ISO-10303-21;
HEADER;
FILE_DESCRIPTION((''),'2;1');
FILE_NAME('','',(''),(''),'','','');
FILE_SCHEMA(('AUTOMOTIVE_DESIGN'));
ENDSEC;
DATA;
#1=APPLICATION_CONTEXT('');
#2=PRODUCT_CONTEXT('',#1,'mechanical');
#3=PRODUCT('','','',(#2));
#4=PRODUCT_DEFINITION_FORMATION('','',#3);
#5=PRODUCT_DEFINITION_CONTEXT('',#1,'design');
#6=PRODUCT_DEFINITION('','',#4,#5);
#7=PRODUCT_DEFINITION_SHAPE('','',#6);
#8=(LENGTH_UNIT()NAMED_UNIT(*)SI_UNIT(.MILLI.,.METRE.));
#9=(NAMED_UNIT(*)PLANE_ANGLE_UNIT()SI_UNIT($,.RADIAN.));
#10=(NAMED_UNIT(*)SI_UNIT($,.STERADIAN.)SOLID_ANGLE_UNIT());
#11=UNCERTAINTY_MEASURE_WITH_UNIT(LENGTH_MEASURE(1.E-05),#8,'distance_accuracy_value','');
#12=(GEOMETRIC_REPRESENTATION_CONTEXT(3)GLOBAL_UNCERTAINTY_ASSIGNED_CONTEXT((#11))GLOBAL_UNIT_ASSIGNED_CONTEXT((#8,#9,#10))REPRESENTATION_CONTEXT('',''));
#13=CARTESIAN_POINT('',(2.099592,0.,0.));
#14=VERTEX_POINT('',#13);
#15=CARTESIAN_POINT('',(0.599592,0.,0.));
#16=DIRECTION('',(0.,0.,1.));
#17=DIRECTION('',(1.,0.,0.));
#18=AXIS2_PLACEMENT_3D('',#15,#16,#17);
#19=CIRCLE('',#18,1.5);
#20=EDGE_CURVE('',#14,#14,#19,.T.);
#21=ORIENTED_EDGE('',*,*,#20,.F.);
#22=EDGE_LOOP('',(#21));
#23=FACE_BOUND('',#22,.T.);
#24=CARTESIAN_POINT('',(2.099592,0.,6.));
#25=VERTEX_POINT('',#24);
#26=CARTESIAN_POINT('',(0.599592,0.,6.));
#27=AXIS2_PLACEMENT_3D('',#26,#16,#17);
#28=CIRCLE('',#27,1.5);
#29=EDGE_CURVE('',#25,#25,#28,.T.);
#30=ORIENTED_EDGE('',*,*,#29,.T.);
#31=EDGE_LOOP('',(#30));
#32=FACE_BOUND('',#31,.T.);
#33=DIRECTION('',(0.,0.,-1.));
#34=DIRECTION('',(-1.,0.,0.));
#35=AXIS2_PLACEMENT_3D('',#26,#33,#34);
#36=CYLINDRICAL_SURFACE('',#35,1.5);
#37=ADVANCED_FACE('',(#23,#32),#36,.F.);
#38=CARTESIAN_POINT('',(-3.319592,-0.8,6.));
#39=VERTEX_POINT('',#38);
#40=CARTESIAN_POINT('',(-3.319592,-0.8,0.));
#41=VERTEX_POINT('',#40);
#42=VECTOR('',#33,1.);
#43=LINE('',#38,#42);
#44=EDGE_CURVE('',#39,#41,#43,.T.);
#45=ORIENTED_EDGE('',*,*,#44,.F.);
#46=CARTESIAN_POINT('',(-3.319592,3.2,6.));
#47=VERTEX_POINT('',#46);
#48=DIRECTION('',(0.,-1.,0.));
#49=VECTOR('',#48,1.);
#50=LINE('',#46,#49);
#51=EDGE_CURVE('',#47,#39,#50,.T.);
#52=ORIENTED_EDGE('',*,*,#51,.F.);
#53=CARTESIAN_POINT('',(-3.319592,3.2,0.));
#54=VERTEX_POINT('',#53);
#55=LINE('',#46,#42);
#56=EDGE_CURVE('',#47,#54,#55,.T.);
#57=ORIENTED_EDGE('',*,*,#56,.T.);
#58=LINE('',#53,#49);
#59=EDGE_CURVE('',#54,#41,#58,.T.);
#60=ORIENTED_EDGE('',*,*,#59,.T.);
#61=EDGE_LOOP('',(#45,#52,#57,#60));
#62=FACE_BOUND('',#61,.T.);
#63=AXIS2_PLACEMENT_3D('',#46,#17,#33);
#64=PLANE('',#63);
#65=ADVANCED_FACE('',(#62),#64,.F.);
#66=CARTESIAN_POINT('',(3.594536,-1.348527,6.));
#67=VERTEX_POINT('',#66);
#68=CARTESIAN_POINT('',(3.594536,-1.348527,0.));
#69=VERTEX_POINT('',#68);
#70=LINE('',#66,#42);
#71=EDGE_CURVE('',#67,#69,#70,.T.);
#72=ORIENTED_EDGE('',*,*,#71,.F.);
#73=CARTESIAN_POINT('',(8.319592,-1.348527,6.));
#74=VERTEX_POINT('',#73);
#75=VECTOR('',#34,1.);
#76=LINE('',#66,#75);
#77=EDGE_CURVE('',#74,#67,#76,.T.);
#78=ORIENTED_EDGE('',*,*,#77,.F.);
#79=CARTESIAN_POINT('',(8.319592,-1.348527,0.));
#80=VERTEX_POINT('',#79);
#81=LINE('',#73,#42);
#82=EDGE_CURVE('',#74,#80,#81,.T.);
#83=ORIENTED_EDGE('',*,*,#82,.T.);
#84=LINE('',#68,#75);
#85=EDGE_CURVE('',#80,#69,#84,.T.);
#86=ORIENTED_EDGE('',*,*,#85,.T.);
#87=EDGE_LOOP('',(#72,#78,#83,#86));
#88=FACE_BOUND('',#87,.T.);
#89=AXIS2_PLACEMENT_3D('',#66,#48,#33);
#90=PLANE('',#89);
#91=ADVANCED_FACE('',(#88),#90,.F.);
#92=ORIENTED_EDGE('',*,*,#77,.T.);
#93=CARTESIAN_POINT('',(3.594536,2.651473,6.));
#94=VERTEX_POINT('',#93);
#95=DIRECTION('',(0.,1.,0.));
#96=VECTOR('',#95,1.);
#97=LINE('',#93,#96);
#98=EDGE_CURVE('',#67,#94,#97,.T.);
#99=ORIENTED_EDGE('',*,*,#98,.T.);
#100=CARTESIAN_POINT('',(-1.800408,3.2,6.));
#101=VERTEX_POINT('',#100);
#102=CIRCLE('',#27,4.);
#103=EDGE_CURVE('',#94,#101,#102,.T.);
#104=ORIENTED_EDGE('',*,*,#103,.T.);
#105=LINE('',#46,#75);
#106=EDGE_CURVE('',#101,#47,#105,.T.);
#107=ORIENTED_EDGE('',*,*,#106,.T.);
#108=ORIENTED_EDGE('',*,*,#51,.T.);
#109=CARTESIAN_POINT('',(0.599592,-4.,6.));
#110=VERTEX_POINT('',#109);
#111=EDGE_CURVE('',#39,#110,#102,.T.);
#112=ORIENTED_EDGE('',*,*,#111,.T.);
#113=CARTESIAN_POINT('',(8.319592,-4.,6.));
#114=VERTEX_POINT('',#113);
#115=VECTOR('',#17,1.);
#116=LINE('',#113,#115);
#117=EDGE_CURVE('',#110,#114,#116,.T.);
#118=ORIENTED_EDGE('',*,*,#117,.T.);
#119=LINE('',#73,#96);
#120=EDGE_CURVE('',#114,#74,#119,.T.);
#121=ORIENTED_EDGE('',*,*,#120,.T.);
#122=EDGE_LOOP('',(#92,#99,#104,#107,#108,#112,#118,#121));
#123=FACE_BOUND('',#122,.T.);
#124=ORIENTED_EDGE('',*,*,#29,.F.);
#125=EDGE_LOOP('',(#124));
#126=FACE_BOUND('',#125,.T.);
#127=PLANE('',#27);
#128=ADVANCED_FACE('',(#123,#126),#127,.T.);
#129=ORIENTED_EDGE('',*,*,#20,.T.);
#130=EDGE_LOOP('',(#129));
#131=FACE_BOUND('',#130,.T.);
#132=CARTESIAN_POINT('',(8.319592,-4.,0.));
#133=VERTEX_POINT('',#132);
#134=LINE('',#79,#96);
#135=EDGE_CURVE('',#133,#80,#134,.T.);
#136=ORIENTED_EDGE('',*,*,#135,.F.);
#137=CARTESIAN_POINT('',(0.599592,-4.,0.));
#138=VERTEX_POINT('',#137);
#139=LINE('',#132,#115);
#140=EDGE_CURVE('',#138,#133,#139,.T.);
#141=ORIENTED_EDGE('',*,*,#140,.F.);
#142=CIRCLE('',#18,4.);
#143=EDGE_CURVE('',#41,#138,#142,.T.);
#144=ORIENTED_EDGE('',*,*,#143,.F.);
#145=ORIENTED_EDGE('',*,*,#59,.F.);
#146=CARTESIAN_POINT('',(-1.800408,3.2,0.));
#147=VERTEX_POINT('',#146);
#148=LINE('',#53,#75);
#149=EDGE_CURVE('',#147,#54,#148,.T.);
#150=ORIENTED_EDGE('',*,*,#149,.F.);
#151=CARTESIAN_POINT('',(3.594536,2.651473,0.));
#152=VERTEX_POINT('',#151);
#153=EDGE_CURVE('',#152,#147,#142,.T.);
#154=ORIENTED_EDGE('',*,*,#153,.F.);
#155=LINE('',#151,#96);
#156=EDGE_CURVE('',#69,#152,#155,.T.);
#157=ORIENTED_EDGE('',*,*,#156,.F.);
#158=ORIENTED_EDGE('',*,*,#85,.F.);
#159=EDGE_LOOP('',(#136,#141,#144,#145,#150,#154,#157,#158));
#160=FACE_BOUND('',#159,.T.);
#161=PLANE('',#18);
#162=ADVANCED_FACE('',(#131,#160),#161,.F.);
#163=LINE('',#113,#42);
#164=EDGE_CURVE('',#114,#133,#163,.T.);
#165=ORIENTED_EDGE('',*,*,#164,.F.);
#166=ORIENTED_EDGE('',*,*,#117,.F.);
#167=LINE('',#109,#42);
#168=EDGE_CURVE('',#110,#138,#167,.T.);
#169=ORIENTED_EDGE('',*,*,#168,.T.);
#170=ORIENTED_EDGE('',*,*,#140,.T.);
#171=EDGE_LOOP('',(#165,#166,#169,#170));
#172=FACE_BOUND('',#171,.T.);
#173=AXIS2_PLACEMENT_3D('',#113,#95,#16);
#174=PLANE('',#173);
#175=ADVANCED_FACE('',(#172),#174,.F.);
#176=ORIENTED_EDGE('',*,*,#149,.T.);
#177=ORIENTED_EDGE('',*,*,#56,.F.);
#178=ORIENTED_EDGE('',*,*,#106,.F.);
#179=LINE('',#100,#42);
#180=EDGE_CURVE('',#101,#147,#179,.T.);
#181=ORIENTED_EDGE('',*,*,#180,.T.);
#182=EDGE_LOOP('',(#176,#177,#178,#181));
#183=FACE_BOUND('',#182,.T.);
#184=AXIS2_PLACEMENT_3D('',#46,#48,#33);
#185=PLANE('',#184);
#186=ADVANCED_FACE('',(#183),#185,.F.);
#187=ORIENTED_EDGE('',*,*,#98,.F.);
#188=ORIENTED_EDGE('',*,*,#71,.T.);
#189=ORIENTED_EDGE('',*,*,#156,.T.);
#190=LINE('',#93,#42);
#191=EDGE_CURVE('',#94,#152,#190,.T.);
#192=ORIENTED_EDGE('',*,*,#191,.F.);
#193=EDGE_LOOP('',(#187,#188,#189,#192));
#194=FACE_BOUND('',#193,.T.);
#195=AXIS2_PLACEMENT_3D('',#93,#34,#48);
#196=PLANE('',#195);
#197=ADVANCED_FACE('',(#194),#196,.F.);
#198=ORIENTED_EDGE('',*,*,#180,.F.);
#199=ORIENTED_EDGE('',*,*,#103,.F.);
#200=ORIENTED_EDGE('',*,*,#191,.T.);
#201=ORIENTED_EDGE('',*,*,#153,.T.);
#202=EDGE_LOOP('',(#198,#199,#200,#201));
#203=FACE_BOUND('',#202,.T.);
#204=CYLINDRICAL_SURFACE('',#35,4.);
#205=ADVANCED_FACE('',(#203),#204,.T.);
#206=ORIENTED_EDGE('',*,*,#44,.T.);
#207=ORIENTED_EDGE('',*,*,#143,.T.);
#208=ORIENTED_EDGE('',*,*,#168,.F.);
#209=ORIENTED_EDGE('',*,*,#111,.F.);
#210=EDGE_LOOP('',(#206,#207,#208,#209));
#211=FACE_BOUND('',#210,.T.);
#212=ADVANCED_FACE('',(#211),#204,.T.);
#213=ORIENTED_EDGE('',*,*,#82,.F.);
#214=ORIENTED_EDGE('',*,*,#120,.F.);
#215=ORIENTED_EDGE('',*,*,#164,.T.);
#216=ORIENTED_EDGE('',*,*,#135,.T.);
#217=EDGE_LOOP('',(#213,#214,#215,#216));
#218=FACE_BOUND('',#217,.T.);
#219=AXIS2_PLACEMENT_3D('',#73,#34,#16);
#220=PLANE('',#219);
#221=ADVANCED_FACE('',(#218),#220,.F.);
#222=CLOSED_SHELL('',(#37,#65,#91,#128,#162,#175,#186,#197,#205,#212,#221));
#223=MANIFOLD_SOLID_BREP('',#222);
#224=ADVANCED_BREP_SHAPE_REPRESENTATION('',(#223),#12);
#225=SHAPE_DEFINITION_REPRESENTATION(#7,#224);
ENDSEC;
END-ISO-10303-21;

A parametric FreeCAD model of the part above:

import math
import FreeCAD as App
import Part
import Sketcher

V = App.Vector
Q = App.Units.Quantity

doc = App.newDocument("Part")
body = doc.addObject("PartDesign::Body", "Body")

# Sketch on XY plane
sketch1 = body.newObject("Sketcher::SketchObject", "Sketch")
sketch1.AttachmentSupport = (doc.getObject("XY_Plane"), [""])
sketch1.MapMode = "FlatFace"
sketch1.addGeometry(Part.LineSegment(V(0.6, -4, 0), V(8.3, -4, 0)), False)
sketch1.addGeometry(Part.LineSegment(V(8.3, -4, 0), V(8.3, -1.3, 0)), False)
sketch1.addGeometry(Part.LineSegment(V(8.3, -1.3, 0), V(3.6, -1.3, 0)), False)
sketch1.addGeometry(Part.LineSegment(V(3.6, -1.3, 0), V(3.6, 2.7, 0)), False)
sketch1.addGeometry(Part.ArcOfCircle(Part.Circle(V(0.6, 0, 0), V(0, 0, 1), 4), math.radians(42), math.radians(127)), False)
sketch1.addGeometry(Part.LineSegment(V(-1.8, 3.2, 0), V(-3.3, 3.2, 0)), False)
sketch1.addGeometry(Part.LineSegment(V(-3.3, 3.2, 0), V(-3.3, -0.8, 0)), False)
sketch1.addGeometry(Part.ArcOfCircle(Part.Circle(V(0.6, 0, 0), V(0, 0, 1), 4), math.radians(-168), math.radians(-90)), False)
sketch1.addGeometry(Part.Circle(V(0.6, 0, 0), V(0, 0, 1), 1.5), False)
sketch1.addConstraint(Sketcher.Constraint("Coincident", 0, 2, 1, 1))
sketch1.addConstraint(Sketcher.Constraint("Coincident", 1, 2, 2, 1))
sketch1.addConstraint(Sketcher.Constraint("Coincident", 2, 2, 3, 1))
sketch1.addConstraint(Sketcher.Constraint("Coincident", 3, 2, 4, 1))
sketch1.addConstraint(Sketcher.Constraint("Coincident", 4, 2, 5, 1))
sketch1.addConstraint(Sketcher.Constraint("Coincident", 5, 2, 6, 1))
sketch1.addConstraint(Sketcher.Constraint("Coincident", 6, 2, 7, 1))
sketch1.addConstraint(Sketcher.Constraint("Tangent", 7, 2, 0, 1))
sketch1.addConstraint(Sketcher.Constraint("Horizontal", 0))
sketch1.addConstraint(Sketcher.Constraint("Vertical", 1))
sketch1.addConstraint(Sketcher.Constraint("Horizontal", 2))
sketch1.addConstraint(Sketcher.Constraint("Vertical", 3))
sketch1.addConstraint(Sketcher.Constraint("Horizontal", 5))
sketch1.addConstraint(Sketcher.Constraint("Vertical", 6))
sketch1.addConstraint(Sketcher.Constraint("Coincident", 7, 3, 4, 3))
sketch1.addConstraint(Sketcher.Constraint("Coincident", 8, 3, 4, 3))
sketch1.addConstraint(Sketcher.Constraint("Equal", 4, 7))
sketch1.addConstraint(Sketcher.Constraint("PointOnObject", 4, 3, -1))
sketch1.addConstraint(Sketcher.Constraint("Equal", 3, 6))
sketch1.addConstraint(Sketcher.Constraint("Diameter", 8, Q("3 mm")))
sketch1.addConstraint(Sketcher.Constraint("Radius", 4, Q("4 mm")))
sketch1.addConstraint(Sketcher.Constraint("DistanceY", 3, 1, 3, 2, Q("4 mm")))
sketch1.addConstraint(Sketcher.Constraint("DistanceX", 0, 1, 0, 2, Q("7.72 mm")))
sketch1.addConstraint(Sketcher.Constraint("DistanceY", -1, 1, 4, 2, Q("3.2 mm")))
sketch1.addConstraint(Sketcher.Constraint("DistanceX", 2, 2, 2, 1, Q("4.725056 mm")))
sketch1.addConstraint(Sketcher.Constraint("DistanceX", -1, 1, 4, 3, Q("0.599592 mm")))
pad1 = body.newObject("PartDesign::Pad", "Pad")
pad1.Profile = sketch1
pad1.Length = 6

doc.recompute()
